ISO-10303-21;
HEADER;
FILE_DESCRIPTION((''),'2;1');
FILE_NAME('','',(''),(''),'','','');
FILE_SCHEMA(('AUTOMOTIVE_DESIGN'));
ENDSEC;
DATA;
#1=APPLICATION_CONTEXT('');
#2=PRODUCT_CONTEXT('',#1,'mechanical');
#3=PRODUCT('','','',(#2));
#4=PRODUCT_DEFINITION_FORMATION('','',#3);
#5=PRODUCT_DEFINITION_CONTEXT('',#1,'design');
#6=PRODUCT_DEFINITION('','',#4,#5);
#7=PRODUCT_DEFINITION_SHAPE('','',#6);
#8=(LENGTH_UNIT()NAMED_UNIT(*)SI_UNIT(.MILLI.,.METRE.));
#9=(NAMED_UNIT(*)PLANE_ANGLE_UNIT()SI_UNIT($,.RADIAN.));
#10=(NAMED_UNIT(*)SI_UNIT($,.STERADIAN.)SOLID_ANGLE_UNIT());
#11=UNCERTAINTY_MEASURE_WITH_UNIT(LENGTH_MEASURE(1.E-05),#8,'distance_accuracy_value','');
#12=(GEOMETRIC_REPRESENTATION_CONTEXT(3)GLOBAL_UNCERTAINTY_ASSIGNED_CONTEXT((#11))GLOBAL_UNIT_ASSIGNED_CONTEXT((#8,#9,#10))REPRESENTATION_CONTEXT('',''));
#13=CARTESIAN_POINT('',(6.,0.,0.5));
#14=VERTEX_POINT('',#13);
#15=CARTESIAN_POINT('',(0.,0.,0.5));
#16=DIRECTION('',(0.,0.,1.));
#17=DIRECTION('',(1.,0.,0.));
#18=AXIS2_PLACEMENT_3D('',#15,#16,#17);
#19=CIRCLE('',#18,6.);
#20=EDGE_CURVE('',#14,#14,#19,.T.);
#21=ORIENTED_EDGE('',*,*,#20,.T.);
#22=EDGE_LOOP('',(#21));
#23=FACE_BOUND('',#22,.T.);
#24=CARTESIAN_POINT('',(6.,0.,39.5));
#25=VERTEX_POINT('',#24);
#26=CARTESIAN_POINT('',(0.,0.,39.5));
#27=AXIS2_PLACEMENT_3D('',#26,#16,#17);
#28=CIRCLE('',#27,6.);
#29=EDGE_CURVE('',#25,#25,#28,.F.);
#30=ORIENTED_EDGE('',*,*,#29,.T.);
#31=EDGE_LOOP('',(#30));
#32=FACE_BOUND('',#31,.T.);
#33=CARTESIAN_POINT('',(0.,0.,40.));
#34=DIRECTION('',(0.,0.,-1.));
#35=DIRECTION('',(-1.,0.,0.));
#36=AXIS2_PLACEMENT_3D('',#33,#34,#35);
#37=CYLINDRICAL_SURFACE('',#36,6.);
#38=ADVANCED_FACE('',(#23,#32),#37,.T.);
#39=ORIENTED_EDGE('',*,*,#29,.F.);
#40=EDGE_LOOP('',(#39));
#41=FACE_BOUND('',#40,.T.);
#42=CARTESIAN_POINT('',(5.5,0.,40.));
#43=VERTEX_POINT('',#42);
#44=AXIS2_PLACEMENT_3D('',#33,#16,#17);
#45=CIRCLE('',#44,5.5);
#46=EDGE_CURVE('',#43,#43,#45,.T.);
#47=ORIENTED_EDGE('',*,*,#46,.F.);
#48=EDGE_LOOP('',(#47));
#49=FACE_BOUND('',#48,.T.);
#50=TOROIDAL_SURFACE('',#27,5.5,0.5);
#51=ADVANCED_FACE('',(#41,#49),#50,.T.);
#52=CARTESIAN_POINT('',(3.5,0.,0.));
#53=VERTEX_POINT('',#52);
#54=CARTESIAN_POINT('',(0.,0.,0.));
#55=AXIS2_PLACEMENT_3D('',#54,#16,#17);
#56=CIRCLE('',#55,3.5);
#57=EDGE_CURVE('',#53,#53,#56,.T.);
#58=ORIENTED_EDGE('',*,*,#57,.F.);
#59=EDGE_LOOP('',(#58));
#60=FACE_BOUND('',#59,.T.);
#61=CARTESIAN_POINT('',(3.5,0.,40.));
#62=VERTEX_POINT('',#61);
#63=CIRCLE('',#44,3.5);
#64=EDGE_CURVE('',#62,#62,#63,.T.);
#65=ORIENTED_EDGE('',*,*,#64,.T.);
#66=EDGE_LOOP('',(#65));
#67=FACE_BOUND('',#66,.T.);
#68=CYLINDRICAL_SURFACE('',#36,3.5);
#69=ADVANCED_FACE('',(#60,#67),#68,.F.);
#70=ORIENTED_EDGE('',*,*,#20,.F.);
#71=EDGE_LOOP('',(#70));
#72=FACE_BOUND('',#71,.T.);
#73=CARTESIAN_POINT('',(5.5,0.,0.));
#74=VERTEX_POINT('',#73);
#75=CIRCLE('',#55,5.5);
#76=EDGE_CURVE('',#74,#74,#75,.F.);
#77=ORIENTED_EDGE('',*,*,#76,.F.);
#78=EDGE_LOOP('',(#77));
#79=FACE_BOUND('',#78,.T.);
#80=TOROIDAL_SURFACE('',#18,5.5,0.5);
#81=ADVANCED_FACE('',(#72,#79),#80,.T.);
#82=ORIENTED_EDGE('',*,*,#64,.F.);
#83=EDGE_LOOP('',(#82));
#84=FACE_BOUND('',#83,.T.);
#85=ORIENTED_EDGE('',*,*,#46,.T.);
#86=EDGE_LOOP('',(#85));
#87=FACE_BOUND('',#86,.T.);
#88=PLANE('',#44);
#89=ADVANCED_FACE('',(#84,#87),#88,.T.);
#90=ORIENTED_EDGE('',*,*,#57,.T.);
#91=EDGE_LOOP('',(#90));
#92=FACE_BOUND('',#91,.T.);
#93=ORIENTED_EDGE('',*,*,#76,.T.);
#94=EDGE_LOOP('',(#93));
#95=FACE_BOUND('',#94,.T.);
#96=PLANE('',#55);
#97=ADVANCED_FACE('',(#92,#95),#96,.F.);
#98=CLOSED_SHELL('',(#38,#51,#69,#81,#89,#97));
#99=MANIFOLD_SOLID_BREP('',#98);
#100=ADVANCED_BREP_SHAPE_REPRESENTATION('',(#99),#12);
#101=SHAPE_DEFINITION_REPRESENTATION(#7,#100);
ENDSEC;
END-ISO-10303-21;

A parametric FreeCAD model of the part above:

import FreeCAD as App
import Part
import Sketcher
from FreeCAD import Vector
Q = App.Units.Quantity


def edges_at(feature, points):
    """Names of the edges that pass closest to the given points."""
    edges = feature.Shape.Edges
    near = lambda p: min(range(len(edges)), key=lambda i: edges[i].distToShape(Part.Vertex(*p))[0])
    return sorted({f"Edge{near(p) + 1}" for p in points})

doc = App.newDocument("Part")
body = doc.addObject("PartDesign::Body", "Body")

# Sketch on XY plane
sketch1 = body.newObject("Sketcher::SketchObject", "Sketch")
sketch1.AttachmentSupport = (doc.getObject("XY_Plane"), [""])
sketch1.MapMode = "FlatFace"
sketch1.addGeometry(Part.Circle(Vector(0, 0, 0), Vector(0, 0, 1), 6), False)
sketch1.addGeometry(Part.Circle(Vector(0, 0, 0), Vector(0, 0, 1), 3.5), False)
sketch1.addConstraint(Sketcher.Constraint("Coincident", 0, 3, -1, 1))
sketch1.addConstraint(Sketcher.Constraint("Coincident", 1, 3, -1, 1))
sketch1.addConstraint(Sketcher.Constraint("Diameter", 0, Q("12 mm")))
sketch1.addConstraint(Sketcher.Constraint("Diameter", 1, Q("7 mm")))
pad1 = body.newObject("PartDesign::Pad", "Pad")
pad1.Profile = sketch1
pad1.Length = 40
doc.recompute()

fillet = body.newObject("PartDesign::Fillet", "Fillet")
fillet.Base = (pad1, edges_at(pad1, [(-6, 0, 40)]))
fillet.Radius = 0.5
doc.recompute()

fillet2 = body.newObject("PartDesign::Fillet", "Fillet001")
fillet2.Base = (fillet, edges_at(fillet, [(-6, 0, 0)]))
fillet2.Radius = 0.5

doc.recompute()
